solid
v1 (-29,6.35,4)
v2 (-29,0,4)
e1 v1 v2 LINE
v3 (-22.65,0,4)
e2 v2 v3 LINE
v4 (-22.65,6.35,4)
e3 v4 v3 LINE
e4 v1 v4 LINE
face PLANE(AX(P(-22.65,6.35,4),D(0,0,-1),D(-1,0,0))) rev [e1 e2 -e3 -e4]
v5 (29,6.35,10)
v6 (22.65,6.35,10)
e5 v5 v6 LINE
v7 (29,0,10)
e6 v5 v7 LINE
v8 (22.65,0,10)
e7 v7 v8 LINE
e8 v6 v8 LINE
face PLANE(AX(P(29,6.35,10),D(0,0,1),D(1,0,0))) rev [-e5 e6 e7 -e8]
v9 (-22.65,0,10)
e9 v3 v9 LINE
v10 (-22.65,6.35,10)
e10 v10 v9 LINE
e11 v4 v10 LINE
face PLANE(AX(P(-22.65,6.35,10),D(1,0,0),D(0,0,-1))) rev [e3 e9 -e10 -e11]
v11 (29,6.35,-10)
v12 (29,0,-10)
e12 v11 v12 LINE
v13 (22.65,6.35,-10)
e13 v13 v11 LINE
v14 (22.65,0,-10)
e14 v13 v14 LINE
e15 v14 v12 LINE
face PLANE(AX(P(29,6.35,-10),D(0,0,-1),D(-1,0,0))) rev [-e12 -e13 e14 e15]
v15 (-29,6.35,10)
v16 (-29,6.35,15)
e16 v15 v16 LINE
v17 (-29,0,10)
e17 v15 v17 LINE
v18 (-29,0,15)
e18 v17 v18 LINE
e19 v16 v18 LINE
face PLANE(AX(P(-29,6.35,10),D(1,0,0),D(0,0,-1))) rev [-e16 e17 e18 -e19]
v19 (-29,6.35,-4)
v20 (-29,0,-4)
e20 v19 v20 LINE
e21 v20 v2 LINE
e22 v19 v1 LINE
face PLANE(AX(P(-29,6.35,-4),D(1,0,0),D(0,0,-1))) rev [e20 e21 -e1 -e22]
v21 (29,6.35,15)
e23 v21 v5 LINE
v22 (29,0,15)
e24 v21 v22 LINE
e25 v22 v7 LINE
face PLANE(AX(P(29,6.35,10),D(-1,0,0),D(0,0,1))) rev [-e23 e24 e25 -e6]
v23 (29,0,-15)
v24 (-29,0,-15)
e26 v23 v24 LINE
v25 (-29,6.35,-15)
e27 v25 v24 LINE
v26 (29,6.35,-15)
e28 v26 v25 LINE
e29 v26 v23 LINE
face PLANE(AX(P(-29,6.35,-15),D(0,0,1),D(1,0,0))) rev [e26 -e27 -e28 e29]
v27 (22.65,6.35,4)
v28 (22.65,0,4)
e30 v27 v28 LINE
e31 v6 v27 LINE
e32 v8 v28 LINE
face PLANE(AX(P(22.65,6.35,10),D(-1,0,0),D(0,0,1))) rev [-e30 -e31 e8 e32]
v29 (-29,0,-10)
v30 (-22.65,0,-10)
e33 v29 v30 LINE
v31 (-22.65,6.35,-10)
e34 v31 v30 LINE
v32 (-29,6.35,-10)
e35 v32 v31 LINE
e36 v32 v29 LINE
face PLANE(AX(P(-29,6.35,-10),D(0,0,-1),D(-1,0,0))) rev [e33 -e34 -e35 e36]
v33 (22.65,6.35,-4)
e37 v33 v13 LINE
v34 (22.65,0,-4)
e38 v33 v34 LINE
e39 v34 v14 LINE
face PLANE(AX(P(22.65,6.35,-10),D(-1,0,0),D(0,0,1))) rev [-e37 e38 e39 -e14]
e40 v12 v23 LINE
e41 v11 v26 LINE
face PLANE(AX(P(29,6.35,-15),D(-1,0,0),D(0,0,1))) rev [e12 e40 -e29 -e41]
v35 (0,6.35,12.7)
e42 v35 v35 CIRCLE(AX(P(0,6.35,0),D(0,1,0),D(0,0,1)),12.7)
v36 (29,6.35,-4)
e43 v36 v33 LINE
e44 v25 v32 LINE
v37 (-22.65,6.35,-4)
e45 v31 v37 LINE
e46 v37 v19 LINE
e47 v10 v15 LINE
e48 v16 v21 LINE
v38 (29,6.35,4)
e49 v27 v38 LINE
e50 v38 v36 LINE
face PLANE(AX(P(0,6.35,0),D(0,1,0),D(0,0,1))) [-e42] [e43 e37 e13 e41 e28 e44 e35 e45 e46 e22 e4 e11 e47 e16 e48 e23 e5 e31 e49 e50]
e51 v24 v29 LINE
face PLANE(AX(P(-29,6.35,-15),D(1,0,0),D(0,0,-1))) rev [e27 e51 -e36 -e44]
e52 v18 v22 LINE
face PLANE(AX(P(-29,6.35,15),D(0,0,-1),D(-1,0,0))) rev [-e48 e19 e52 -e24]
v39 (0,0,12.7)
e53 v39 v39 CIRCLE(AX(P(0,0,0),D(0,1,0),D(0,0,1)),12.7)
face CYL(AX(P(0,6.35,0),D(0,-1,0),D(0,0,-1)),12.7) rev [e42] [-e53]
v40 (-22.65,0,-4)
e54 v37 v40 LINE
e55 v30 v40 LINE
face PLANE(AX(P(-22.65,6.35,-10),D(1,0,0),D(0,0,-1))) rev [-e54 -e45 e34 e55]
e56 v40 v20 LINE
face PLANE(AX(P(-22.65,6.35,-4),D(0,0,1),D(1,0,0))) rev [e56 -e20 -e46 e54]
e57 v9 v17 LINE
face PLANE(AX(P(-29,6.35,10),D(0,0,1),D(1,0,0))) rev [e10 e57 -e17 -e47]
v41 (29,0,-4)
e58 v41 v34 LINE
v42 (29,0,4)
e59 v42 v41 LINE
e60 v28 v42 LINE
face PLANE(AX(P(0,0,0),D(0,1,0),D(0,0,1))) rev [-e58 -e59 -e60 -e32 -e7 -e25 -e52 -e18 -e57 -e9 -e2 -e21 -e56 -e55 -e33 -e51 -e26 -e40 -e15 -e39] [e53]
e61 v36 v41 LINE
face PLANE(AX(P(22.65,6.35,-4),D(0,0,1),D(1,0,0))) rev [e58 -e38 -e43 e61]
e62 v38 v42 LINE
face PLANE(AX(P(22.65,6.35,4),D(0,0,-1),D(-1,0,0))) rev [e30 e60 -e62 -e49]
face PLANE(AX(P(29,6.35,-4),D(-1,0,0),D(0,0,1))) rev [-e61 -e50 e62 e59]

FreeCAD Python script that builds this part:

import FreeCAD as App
import Part
import Sketcher

V = App.Vector

doc = App.newDocument("Part")
params = doc.addObject("Spreadsheet::Sheet", "Params")
for row, (alias, value) in enumerate([
    ("sketch1_diameter", "25.4 mm"),
    ("sketch1_width", "58 mm"),
    ("sketch1_height", "5 mm"),
    ("sketch1_height2", "6 mm"),
    ("sketch1_height3", "8 mm"),
    ("pad1_length", "6.35 mm"),
], start=1):
    params.set(f"A{row}", alias)
    params.set(f"B{row}", "=" + value)
    params.setAlias(f"B{row}", alias)

body = doc.addObject("PartDesign::Body", "Body")

sketch1 = body.newObject("Sketcher::SketchObject", "Sketch")
sketch1.AttachmentSupport = (doc.getObject("XZ_Plane"), [""])
sketch1.MapMode = "FlatFace"
sketch1.addGeometry(Part.LineSegment(V(29, -15, 0), V(-29, -15, 0)), False)
sketch1.addGeometry(Part.LineSegment(V(-29, -15, 0), V(-29, -10, 0)), False)
sketch1.addGeometry(Part.LineSegment(V(-29, -10, 0), V(-22.65, -10, 0)), False)
sketch1.addGeometry(Part.LineSegment(V(-22.65, -10, 0), V(-22.65, -4, 0)), False)
sketch1.addGeometry(Part.LineSegment(V(-22.65, -4, 0), V(-29, -4, 0)), False)
sketch1.addGeometry(Part.LineSegment(V(-29, -4, 0), V(-29, 4, 0)), False)
sketch1.addGeometry(Part.LineSegment(V(-29, 4, 0), V(-22.65, 4, 0)), False)
sketch1.addGeometry(Part.LineSegment(V(-22.65, 4, 0), V(-22.65, 10, 0)), False)
sketch1.addGeometry(Part.LineSegment(V(-22.65, 10, 0), V(-29, 10, 0)), False)
sketch1.addGeometry(Part.LineSegment(V(-29, 10, 0), V(-29, 15, 0)), False)
sketch1.addGeometry(Part.LineSegment(V(-29, 15, 0), V(29, 15, 0)), False)
sketch1.addGeometry(Part.LineSegment(V(29, 15, 0), V(29, 10, 0)), False)
sketch1.addGeometry(Part.LineSegment(V(29, 10, 0), V(22.65, 10, 0)), False)
sketch1.addGeometry(Part.LineSegment(V(22.65, 10, 0), V(22.65, 4, 0)), False)
sketch1.addGeometry(Part.LineSegment(V(22.65, 4, 0), V(29, 4, 0)), False)
sketch1.addGeometry(Part.LineSegment(V(29, 4, 0), V(29, -4, 0)), False)
sketch1.addGeometry(Part.LineSegment(V(29, -4, 0), V(22.65, -4, 0)), False)
sketch1.addGeometry(Part.LineSegment(V(22.65, -4, 0), V(22.65, -10, 0)), False)
sketch1.addGeometry(Part.LineSegment(V(22.65, -10, 0), V(29, -10, 0)), False)
sketch1.addGeometry(Part.LineSegment(V(29, -10, 0), V(29, -15, 0)), False)
sketch1.addGeometry(Part.Circle(V(0, 0, 0), V(0, 0, 1), 12.7), False)
sketch1.addConstraint(Sketcher.Constraint("Coincident", 0, 2, 1, 1))
sketch1.addConstraint(Sketcher.Constraint("Coincident", 1, 2, 2, 1))
sketch1.addConstraint(Sketcher.Constraint("Coincident", 2, 2, 3, 1))
sketch1.addConstraint(Sketcher.Constraint("Coincident", 3, 2, 4, 1))
sketch1.addConstraint(Sketcher.Constraint("Coincident", 4, 2, 5, 1))
sketch1.addConstraint(Sketcher.Constraint("Coincident", 5, 2, 6, 1))
sketch1.addConstraint(Sketcher.Constraint("Coincident", 6, 2, 7, 1))
sketch1.addConstraint(Sketcher.Constraint("Coincident", 7, 2, 8, 1))
sketch1.addConstraint(Sketcher.Constraint("Coincident", 8, 2, 9, 1))
sketch1.addConstraint(Sketcher.Constraint("Coincident", 9, 2, 10, 1))
sketch1.addConstraint(Sketcher.Constraint("Coincident", 10, 2, 11, 1))
sketch1.addConstraint(Sketcher.Constraint("Coincident", 11, 2, 12, 1))
sketch1.addConstraint(Sketcher.Constraint("Coincident", 12, 2, 13, 1))
sketch1.addConstraint(Sketcher.Constraint("Coincident", 13, 2, 14, 1))
sketch1.addConstraint(Sketcher.Constraint("Coincident", 14, 2, 15, 1))
sketch1.addConstraint(Sketcher.Constraint("Coincident", 15, 2, 16, 1))
sketch1.addConstraint(Sketcher.Constraint("Coincident", 16, 2, 17, 1))
sketch1.addConstraint(Sketcher.Constraint("Coincident", 17, 2, 18, 1))
sketch1.addConstraint(Sketcher.Constraint("Coincident", 18, 2, 19, 1))
sketch1.addConstraint(Sketcher.Constraint("Coincident", 19, 2, 0, 1))
sketch1.addConstraint(Sketcher.Constraint("Horizontal", 0))
sketch1.addConstraint(Sketcher.Constraint("Vertical", 1))
sketch1.addConstraint(Sketcher.Constraint("Horizontal", 2))
sketch1.addConstraint(Sketcher.Constraint("Vertical", 3))
sketch1.addConstraint(Sketcher.Constraint("Horizontal", 4))
sketch1.addConstraint(Sketcher.Constraint("Vertical", 5))
sketch1.addConstraint(Sketcher.Constraint("Horizontal", 6))
sketch1.addConstraint(Sketcher.Constraint("Vertical", 7))
sketch1.addConstraint(Sketcher.Constraint("Horizontal", 8))
sketch1.addConstraint(Sketcher.Constraint("Vertical", 9))
sketch1.addConstraint(Sketcher.Constraint("Horizontal", 10))
sketch1.addConstraint(Sketcher.Constraint("Vertical", 11))
sketch1.addConstraint(Sketcher.Constraint("Horizontal", 12))
sketch1.addConstraint(Sketcher.Constraint("Vertical", 13))
sketch1.addConstraint(Sketcher.Constraint("Horizontal", 14))
sketch1.addConstraint(Sketcher.Constraint("Vertical", 15))
sketch1.addConstraint(Sketcher.Constraint("Horizontal", 16))
sketch1.addConstraint(Sketcher.Constraint("Vertical", 17))
sketch1.addConstraint(Sketcher.Constraint("Horizontal", 18))
sketch1.addConstraint(Sketcher.Constraint("Vertical", 19))
sketch1.addConstraint(Sketcher.Constraint("Coincident", 20, 3, -1, 1))
sketch1.addConstraint(Sketcher.Constraint("Symmetric", 0, 2, 10, 2, -1, 1))
sketch1.addConstraint(Sketcher.Constraint("Symmetric", 2, 2, 12, 2, -1, 1))
sketch1.addConstraint(Sketcher.Constraint("Symmetric", 4, 2, 14, 2, -1, 1))
sketch1.addConstraint(Sketcher.Constraint("Symmetric", 6, 2, 16, 2, -1, 1))
sketch1.addConstraint(Sketcher.Constraint("Symmetric", 8, 2, 18, 2, -1, 1))
sketch1.addConstraint(Sketcher.Constraint("Symmetric", 8, 2, 11, 2, -2))
sketch1.addConstraint(Sketcher.Constraint("Symmetric", 6, 2, 13, 2, -2))
sketch1.addConstraint(Sketcher.Constraint("Vertical", 1, 2, 4, 2))
sketch1.addConstraint(Sketcher.Constraint("Diameter", 20, 25.4))
sketch1.addConstraint(Sketcher.Constraint("DistanceX", 0, 2, 0, 1, 58.0))
sketch1.addConstraint(Sketcher.Constraint("DistanceY", 1, 1, 1, 2, 5.0))
sketch1.addConstraint(Sketcher.Constraint("DistanceY", 3, 1, 3, 2, 6.0))
sketch1.addConstraint(Sketcher.Constraint("DistanceY", 5, 1, 5, 2, 8.0))
sketch1.addConstraint(Sketcher.Constraint("DistanceX", 2, 1, 2, 2, 6.35))
sketch1.setExpression("Constraints[49]", "Params.sketch1_diameter")
sketch1.setExpression("Constraints[50]", "Params.sketch1_width")
sketch1.setExpression("Constraints[51]", "Params.sketch1_height")
sketch1.setExpression("Constraints[52]", "Params.sketch1_height2")
sketch1.setExpression("Constraints[53]", "Params.sketch1_height3")
pad1 = body.newObject("PartDesign::Pad", "Pad")
pad1.Profile = sketch1
pad1.setExpression("Length", "Params.pad1_length")
pad1.Reversed = True

doc.recompute()
